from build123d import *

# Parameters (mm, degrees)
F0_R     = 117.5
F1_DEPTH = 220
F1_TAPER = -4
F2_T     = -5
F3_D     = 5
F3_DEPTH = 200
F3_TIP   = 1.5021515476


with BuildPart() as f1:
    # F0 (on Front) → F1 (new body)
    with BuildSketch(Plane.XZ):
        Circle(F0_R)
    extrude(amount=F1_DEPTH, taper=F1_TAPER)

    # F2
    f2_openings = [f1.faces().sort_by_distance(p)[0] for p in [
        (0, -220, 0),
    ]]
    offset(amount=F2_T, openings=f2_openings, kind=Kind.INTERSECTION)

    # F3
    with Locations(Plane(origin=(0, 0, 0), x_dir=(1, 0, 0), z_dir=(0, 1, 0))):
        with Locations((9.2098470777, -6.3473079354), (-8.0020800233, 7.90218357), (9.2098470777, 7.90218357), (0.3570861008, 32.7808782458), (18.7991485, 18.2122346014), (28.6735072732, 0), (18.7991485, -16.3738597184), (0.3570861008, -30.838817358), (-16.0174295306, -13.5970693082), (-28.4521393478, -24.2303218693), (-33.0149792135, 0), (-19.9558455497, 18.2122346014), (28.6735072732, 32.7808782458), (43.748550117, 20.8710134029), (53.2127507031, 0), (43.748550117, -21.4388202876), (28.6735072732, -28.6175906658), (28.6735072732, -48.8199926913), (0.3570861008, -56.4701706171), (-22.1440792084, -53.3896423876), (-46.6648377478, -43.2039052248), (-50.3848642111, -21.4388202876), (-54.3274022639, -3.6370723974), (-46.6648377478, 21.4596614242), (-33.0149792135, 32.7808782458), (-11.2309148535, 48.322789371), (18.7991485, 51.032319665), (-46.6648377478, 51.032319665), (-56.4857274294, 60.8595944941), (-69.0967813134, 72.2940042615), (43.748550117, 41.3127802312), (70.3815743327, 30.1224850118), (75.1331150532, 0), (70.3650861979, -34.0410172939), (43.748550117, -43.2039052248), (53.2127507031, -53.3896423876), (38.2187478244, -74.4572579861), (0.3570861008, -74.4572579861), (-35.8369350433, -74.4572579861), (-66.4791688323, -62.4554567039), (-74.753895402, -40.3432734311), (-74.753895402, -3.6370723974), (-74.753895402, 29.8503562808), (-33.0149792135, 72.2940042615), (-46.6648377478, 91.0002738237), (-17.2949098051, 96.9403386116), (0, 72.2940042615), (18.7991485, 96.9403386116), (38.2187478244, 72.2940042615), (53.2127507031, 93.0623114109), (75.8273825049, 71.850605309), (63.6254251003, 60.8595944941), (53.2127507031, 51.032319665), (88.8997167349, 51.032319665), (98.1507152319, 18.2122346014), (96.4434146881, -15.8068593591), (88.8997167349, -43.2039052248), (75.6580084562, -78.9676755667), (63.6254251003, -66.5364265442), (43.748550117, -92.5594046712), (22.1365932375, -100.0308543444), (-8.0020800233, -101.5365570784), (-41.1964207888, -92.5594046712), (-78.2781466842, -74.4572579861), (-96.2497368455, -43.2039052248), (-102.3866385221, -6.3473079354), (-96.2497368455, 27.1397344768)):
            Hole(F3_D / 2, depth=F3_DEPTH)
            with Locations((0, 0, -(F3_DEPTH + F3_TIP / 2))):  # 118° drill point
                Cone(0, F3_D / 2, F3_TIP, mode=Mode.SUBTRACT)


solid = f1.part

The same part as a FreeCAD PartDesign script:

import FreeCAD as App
import Part
import Sketcher

V = App.Vector


def faces_at(feature, points):
    """Names of the faces that lie closest to the given points."""
    faces = feature.Shape.Faces
    near = lambda p: min(range(len(faces)), key=lambda i: faces[i].distToShape(Part.Vertex(*p))[0])
    return sorted({f"Face{near(p) + 1}" for p in points})

doc = App.newDocument("Part")
body = doc.addObject("PartDesign::Body", "Body")

# Sketch on XZ plane
sketch1 = body.newObject("Sketcher::SketchObject", "Sketch")
sketch1.AttachmentSupport = (doc.getObject("XZ_Plane"), [""])
sketch1.MapMode = "FlatFace"
sketch1.addGeometry(Part.Circle(V(0, 0, 0), V(0, 0, 1), 117.5), False)
sketch1.addConstraint([
    Sketcher.Constraint("Coincident", 0, 3, -1, 1),
    Sketcher.Constraint("Diameter", 0, 235.0),
])
pad1 = body.newObject("PartDesign::Pad", "Pad")
pad1.Profile = sketch1
pad1.Length = 220
pad1.TaperAngle = 4
doc.recompute()

thickness = body.newObject("PartDesign::Thickness", "Thickness")
thickness.Base = (pad1, faces_at(pad1, [(0, -220, 0)]))
thickness.Value = 5
thickness.Reversed = True
thickness.Join = "Intersection"

# Sketch on XZ plane
sketch2 = body.newObject("Sketcher::SketchObject", "Sketch001")
sketch2.AttachmentSupport = (doc.getObject("XZ_Plane"), [""])
sketch2.MapMode = "FlatFace"
sketch2.addGeometry([
    Part.Circle(V(9.209847, 6.347308, 0), V(0, 0, 1), 2.5),  # 0
    Part.Circle(V(-8.00208, -7.902184, 0), V(0, 0, 1), 2.5),  # 1
    Part.Circle(V(9.209847, -7.902184, 0), V(0, 0, 1), 2.5),  # 2
    Part.Circle(V(0.357086, -32.780878, 0), V(0, 0, 1), 2.5),  # 3
    Part.Circle(V(18.799149, -18.212235, 0), V(0, 0, 1), 2.5),  # 4
    Part.Circle(V(28.673507, 0, 0), V(0, 0, 1), 2.5),  # 5
    Part.Circle(V(18.799149, 16.37386, 0), V(0, 0, 1), 2.5),  # 6
    Part.Circle(V(0.357086, 30.838817, 0), V(0, 0, 1), 2.5),  # 7
    Part.Circle(V(-16.01743, 13.597069, 0), V(0, 0, 1), 2.5),  # 8
    Part.Circle(V(-28.452139, 24.230322, 0), V(0, 0, 1), 2.5),  # 9
    Part.Circle(V(-33.014979, 0, 0), V(0, 0, 1), 2.5),  # 10
    Part.Circle(V(-19.955846, -18.212235, 0), V(0, 0, 1), 2.5),  # 11
    Part.Circle(V(28.673507, -32.780878, 0), V(0, 0, 1), 2.5),  # 12
    Part.Circle(V(43.74855, -20.871013, 0), V(0, 0, 1), 2.5),  # 13
    Part.Circle(V(53.212751, 0, 0), V(0, 0, 1), 2.5),  # 14
    Part.Circle(V(43.74855, 21.43882, 0), V(0, 0, 1), 2.5),  # 15
    Part.Circle(V(28.673507, 28.617591, 0), V(0, 0, 1), 2.5),  # 16
    Part.Circle(V(28.673507, 48.819993, 0), V(0, 0, 1), 2.5),  # 17
    Part.Circle(V(0.357086, 56.470171, 0), V(0, 0, 1), 2.5),  # 18
    Part.Circle(V(-22.144079, 53.389642, 0), V(0, 0, 1), 2.5),  # 19
    Part.Circle(V(-46.664838, 43.203905, 0), V(0, 0, 1), 2.5),  # 20
    Part.Circle(V(-50.384864, 21.43882, 0), V(0, 0, 1), 2.5),  # 21
    Part.Circle(V(-54.327402, 3.637072, 0), V(0, 0, 1), 2.5),  # 22
    Part.Circle(V(-46.664838, -21.459661, 0), V(0, 0, 1), 2.5),  # 23
    Part.Circle(V(-33.014979, -32.780878, 0), V(0, 0, 1), 2.5),  # 24
    Part.Circle(V(-11.230915, -48.322789, 0), V(0, 0, 1), 2.5),  # 25
    Part.Circle(V(18.799149, -51.03232, 0), V(0, 0, 1), 2.5),  # 26
    Part.Circle(V(-46.664838, -51.03232, 0), V(0, 0, 1), 2.5),  # 27
    Part.Circle(V(-56.485727, -60.859594, 0), V(0, 0, 1), 2.5),  # 28
    Part.Circle(V(-69.096781, -72.294004, 0), V(0, 0, 1), 2.5),  # 29
    Part.Circle(V(43.74855, -41.31278, 0), V(0, 0, 1), 2.5),  # 30
    Part.Circle(V(70.381574, -30.122485, 0), V(0, 0, 1), 2.5),  # 31
    Part.Circle(V(75.133115, 0, 0), V(0, 0, 1), 2.5),  # 32
    Part.Circle(V(70.365086, 34.041017, 0), V(0, 0, 1), 2.5),  # 33
    Part.Circle(V(43.74855, 43.203905, 0), V(0, 0, 1), 2.5),  # 34
    Part.Circle(V(53.212751, 53.389642, 0), V(0, 0, 1), 2.5),  # 35
    Part.Circle(V(38.218748, 74.457258, 0), V(0, 0, 1), 2.5),  # 36
    Part.Circle(V(0.357086, 74.457258, 0), V(0, 0, 1), 2.5),  # 37
    Part.Circle(V(-35.836935, 74.457258, 0), V(0, 0, 1), 2.5),  # 38
    Part.Circle(V(-66.479169, 62.455457, 0), V(0, 0, 1), 2.5),  # 39
    Part.Circle(V(-74.753895, 40.343273, 0), V(0, 0, 1), 2.5),  # 40
    Part.Circle(V(-74.753895, 3.637072, 0), V(0, 0, 1), 2.5),  # 41
    Part.Circle(V(-74.753895, -29.850356, 0), V(0, 0, 1), 2.5),  # 42
    Part.Circle(V(-33.014979, -72.294004, 0), V(0, 0, 1), 2.5),  # 43
    Part.Circle(V(-46.664838, -91.000274, 0), V(0, 0, 1), 2.5),  # 44
    Part.Circle(V(-17.29491, -96.940339, 0), V(0, 0, 1), 2.5),  # 45
    Part.Circle(V(0, -72.294004, 0), V(0, 0, 1), 2.5),  # 46
    Part.Circle(V(18.799149, -96.940339, 0), V(0, 0, 1), 2.5),  # 47
    Part.Circle(V(38.218748, -72.294004, 0), V(0, 0, 1), 2.5),  # 48
    Part.Circle(V(53.212751, -93.062311, 0), V(0, 0, 1), 2.5),  # 49
    Part.Circle(V(75.827383, -71.850605, 0), V(0, 0, 1), 2.5),  # 50
    Part.Circle(V(63.625425, -60.859594, 0), V(0, 0, 1), 2.5),  # 51
    Part.Circle(V(53.212751, -51.03232, 0), V(0, 0, 1), 2.5),  # 52
    Part.Circle(V(88.899717, -51.03232, 0), V(0, 0, 1), 2.5),  # 53
    Part.Circle(V(98.150715, -18.212235, 0), V(0, 0, 1), 2.5),  # 54
    Part.Circle(V(96.443415, 15.806859, 0), V(0, 0, 1), 2.5),  # 55
    Part.Circle(V(88.899717, 43.203905, 0), V(0, 0, 1), 2.5),  # 56
    Part.Circle(V(75.658008, 78.967676, 0), V(0, 0, 1), 2.5),  # 57
    Part.Circle(V(63.625425, 66.536427, 0), V(0, 0, 1), 2.5),  # 58
    Part.Circle(V(43.74855, 92.559405, 0), V(0, 0, 1), 2.5),  # 59
    Part.Circle(V(22.136593, 100.030854, 0), V(0, 0, 1), 2.5),  # 60
    Part.Circle(V(-8.00208, 101.536557, 0), V(0, 0, 1), 2.5),  # 61
    Part.Circle(V(-41.196421, 92.559405, 0), V(0, 0, 1), 2.5),  # 62
    Part.Circle(V(-78.278147, 74.457258, 0), V(0, 0, 1), 2.5),  # 63
    Part.Circle(V(-96.249737, 43.203905, 0), V(0, 0, 1), 2.5),  # 64
    Part.Circle(V(-102.386639, 6.347308, 0), V(0, 0, 1), 2.5),  # 65
    Part.Circle(V(-96.249737, -27.139734, 0), V(0, 0, 1), 2.5),  # 66
], False)
sketch2.addConstraint([
    Sketcher.Constraint("Equal", 0, 1),
    Sketcher.Constraint("Equal", 1, 2),
    Sketcher.Constraint("Equal", 2, 3),
    Sketcher.Constraint("Equal", 3, 4),
    Sketcher.Constraint("Equal", 4, 5),
    Sketcher.Constraint("Equal", 5, 6),
    Sketcher.Constraint("Equal", 6, 7),
    Sketcher.Constraint("Equal", 7, 8),
    Sketcher.Constraint("Equal", 8, 9),
    Sketcher.Constraint("Equal", 9, 10),
    Sketcher.Constraint("Equal", 10, 11),
    Sketcher.Constraint("Equal", 11, 12),
    Sketcher.Constraint("Equal", 12, 13),
    Sketcher.Constraint("Equal", 13, 14),
    Sketcher.Constraint("Equal", 14, 15),
    Sketcher.Constraint("Equal", 15, 16),
    Sketcher.Constraint("Equal", 16, 17),
    Sketcher.Constraint("Equal", 17, 18),
    Sketcher.Constraint("Equal", 18, 19),
    Sketcher.Constraint("Equal", 19, 20),
    Sketcher.Constraint("Equal", 20, 21),
    Sketcher.Constraint("Equal", 21, 22),
    Sketcher.Constraint("Equal", 22, 23),
    Sketcher.Constraint("Equal", 23, 24),
    Sketcher.Constraint("Equal", 24, 25),
    Sketcher.Constraint("Equal", 25, 26),
    Sketcher.Constraint("Equal", 26, 27),
    Sketcher.Constraint("Equal", 27, 28),
    Sketcher.Constraint("Equal", 28, 29),
    Sketcher.Constraint("Equal", 29, 30),
    Sketcher.Constraint("Equal", 30, 31),
    Sketcher.Constraint("Equal", 31, 32),
    Sketcher.Constraint("Equal", 32, 33),
    Sketcher.Constraint("Equal", 33, 34),
    Sketcher.Constraint("Equal", 34, 35),
    Sketcher.Constraint("Equal", 35, 36),
    Sketcher.Constraint("Equal", 36, 37),
    Sketcher.Constraint("Equal", 37, 38),
    Sketcher.Constraint("Equal", 38, 39),
    Sketcher.Constraint("Equal", 39, 40),
    Sketcher.Constraint("Equal", 40, 41),
    Sketcher.Constraint("Equal", 41, 42),
    Sketcher.Constraint("Equal", 42, 43),
    Sketcher.Constraint("Equal", 43, 44),
    Sketcher.Constraint("Equal", 44, 45),
    Sketcher.Constraint("Equal", 45, 46),
    Sketcher.Constraint("Equal", 46, 47),
    Sketcher.Constraint("Equal", 47, 48),
    Sketcher.Constraint("Equal", 48, 49),
    Sketcher.Constraint("Equal", 49, 50),
    Sketcher.Constraint("Equal", 50, 51),
    Sketcher.Constraint("Equal", 51, 52),
    Sketcher.Constraint("Equal", 52, 53),
    Sketcher.Constraint("Equal", 53, 54),
    Sketcher.Constraint("Equal", 54, 55),
    Sketcher.Constraint("Equal", 55, 56),
    Sketcher.Constraint("Equal", 56, 57),
    Sketcher.Constraint("Equal", 57, 58),
    Sketcher.Constraint("Equal", 58, 59),
    Sketcher.Constraint("Equal", 59, 60),
    Sketcher.Constraint("Equal", 60, 61),
    Sketcher.Constraint("Equal", 61, 62),
    Sketcher.Constraint("Equal", 62, 63),
    Sketcher.Constraint("Equal", 63, 64),
    Sketcher.Constraint("Equal", 64, 65),
    Sketcher.Constraint("Equal", 65, 66),
    Sketcher.Constraint("PointOnObject", 5, 3, -1),
    Sketcher.Constraint("PointOnObject", 10, 3, -1),
    Sketcher.Constraint("PointOnObject", 14, 3, -1),
    Sketcher.Constraint("PointOnObject", 32, 3, -1),
    Sketcher.Constraint("PointOnObject", 46, 3, -2),
    Sketcher.Constraint("Horizontal", 1, 3, 2, 3),
    Sketcher.Constraint("Horizontal", 4, 3, 11, 3),
    Sketcher.Constraint("Horizontal", 3, 3, 12, 3),
    Sketcher.Constraint("Horizontal", 15, 3, 21, 3),
    Sketcher.Constraint("Horizontal", 12, 3, 24, 3),
    Sketcher.Constraint("Horizontal", 26, 3, 27, 3),
    Sketcher.Constraint("Horizontal", 20, 3, 34, 3),
    Sketcher.Constraint("Horizontal", 19, 3, 35, 3),
    Sketcher.Constraint("Horizontal", 36, 3, 37, 3),
    Sketcher.Constraint("Horizontal", 37, 3, 38, 3),
    Sketcher.Constraint("Horizontal", 22, 3, 41, 3),
    Sketcher.Constraint("Horizontal", 29, 3, 43, 3),
    Sketcher.Constraint("Horizontal", 43, 3, 46, 3),
    Sketcher.Constraint("Horizontal", 45, 3, 47, 3),
    Sketcher.Constraint("Horizontal", 46, 3, 48, 3),
    Sketcher.Constraint("Horizontal", 28, 3, 51, 3),
    Sketcher.Constraint("Horizontal", 27, 3, 52, 3),
    Sketcher.Constraint("Horizontal", 52, 3, 53, 3),
    Sketcher.Constraint("Horizontal", 11, 3, 54, 3),
    Sketcher.Constraint("Horizontal", 34, 3, 56, 3),
    Sketcher.Constraint("Horizontal", 59, 3, 62, 3),
    Sketcher.Constraint("Horizontal", 38, 3, 63, 3),
    Sketcher.Constraint("Horizontal", 56, 3, 64, 3),
    Sketcher.Constraint("Horizontal", 0, 3, 65, 3),
    Sketcher.Constraint("Vertical", 0, 3, 2, 3),
    Sketcher.Constraint("Vertical", 4, 3, 6, 3),
    Sketcher.Constraint("Vertical", 3, 3, 7, 3),
    Sketcher.Constraint("Vertical", 5, 3, 12, 3),
    Sketcher.Constraint("Vertical", 13, 3, 15, 3),
    Sketcher.Constraint("Vertical", 12, 3, 16, 3),
    Sketcher.Constraint("Vertical", 16, 3, 17, 3),
    Sketcher.Constraint("Vertical", 7, 3, 18, 3),
    Sketcher.Constraint("Vertical", 20, 3, 23, 3),
    Sketcher.Constraint("Vertical", 10, 3, 24, 3),
    Sketcher.Constraint("Vertical", 6, 3, 26, 3),
    Sketcher.Constraint("Vertical", 23, 3, 27, 3),
    Sketcher.Constraint("Vertical", 15, 3, 30, 3),
    Sketcher.Constraint("Vertical", 30, 3, 34, 3),
    Sketcher.Constraint("Vertical", 14, 3, 35, 3),
    Sketcher.Constraint("Vertical", 18, 3, 37, 3),
    Sketcher.Constraint("Vertical", 40, 3, 41, 3),
    Sketcher.Constraint("Vertical", 41, 3, 42, 3),
    Sketcher.Constraint("Vertical", 24, 3, 43, 3),
    Sketcher.Constraint("Vertical", 27, 3, 44, 3),
    Sketcher.Constraint("Vertical", 26, 3, 47, 3),
    Sketcher.Constraint("Vertical", 36, 3, 48, 3),
    Sketcher.Constraint("Vertical", 35, 3, 49, 3),
    Sketcher.Constraint("Vertical", 49, 3, 52, 3),
    Sketcher.Constraint("Vertical", 53, 3, 56, 3),
    Sketcher.Constraint("Vertical", 51, 3, 58, 3),
    Sketcher.Constraint("Vertical", 34, 3, 59, 3),
    Sketcher.Constraint("Vertical", 1, 3, 61, 3),
    Sketcher.Constraint("Vertical", 64, 3, 66, 3),
    Sketcher.Constraint("Diameter", 0, 5.0),
    Sketcher.Constraint("DistanceX", 1, 3, -1, 1, 8.00208),
    Sketcher.Constraint("DistanceY", 3, 3, -1, 1, 32.780878),
    Sketcher.Constraint("DistanceX", -1, 1, 4, 3, 18.799149),
    Sketcher.Constraint("DistanceY", -1, 1, 6, 3, 16.37386),
    Sketcher.Constraint("DistanceX", 8, 3, -1, 1, 16.01743),
    Sketcher.Constraint("DistanceY", -1, 1, 8, 3, 13.597069),
    Sketcher.Constraint("DistanceX", 9, 3, -1, 1, 28.452139),
    Sketcher.Constraint("DistanceY", -1, 1, 9, 3, 24.230322),
    Sketcher.Constraint("DistanceX", 10, 3, -1, 1, 33.014979),
    Sketcher.Constraint("DistanceX", -1, 1, 13, 3, 43.74855),
    Sketcher.Constraint("DistanceX", -1, 1, 14, 3, 53.212751),
    Sketcher.Constraint("DistanceY", -1, 1, 15, 3, 21.43882),
    Sketcher.Constraint("DistanceY", -1, 1, 16, 3, 28.617591),
    Sketcher.Constraint("DistanceY", -1, 1, 18, 3, 56.470171),
    Sketcher.Constraint("DistanceX", 19, 3, -1, 1, 22.144079),
    Sketcher.Constraint("DistanceY", 23, 3, -1, 1, 21.459661),
    Sketcher.Constraint("DistanceY", 25, 3, -1, 1, 48.322789),
    Sketcher.Constraint("DistanceY", 26, 3, -1, 1, 51.03232),
    Sketcher.Constraint("DistanceX", 29, 3, -1, 1, 69.096781),
    Sketcher.Constraint("DistanceY", 30, 3, -1, 1, 41.31278),
    Sketcher.Constraint("DistanceX", 39, 3, -1, 1, 66.479169),
    Sketcher.Constraint("DistanceX", 45, 3, -1, 1, 17.29491),
    Sketcher.Constraint("DistanceY", 45, 3, -1, 1, 96.940339),
    Sketcher.Constraint("DistanceY", 49, 3, -1, 1, 93.062311),
    Sketcher.Constraint("DistanceY", -1, 1, 55, 3, 15.806859),
    Sketcher.Constraint("DistanceX", -1, 1, 57, 3, 75.658008),
    Sketcher.Constraint("DistanceX", 62, 3, -1, 1, 41.196421),
    Sketcher.Constraint("DistanceX", 65, 3, -1, 1, 102.386639),
    Sketcher.Constraint("DistanceX", -1, 1, 0, 3, 9.209847),
    Sketcher.Constraint("DistanceY", -1, 1, 0, 3, 6.347308),
    Sketcher.Constraint("DistanceY", 1, 3, -1, 1, 7.902184),
    Sketcher.Constraint("DistanceX", -1, 1, 3, 3, 0.357086),
    Sketcher.Constraint("DistanceY", 4, 3, -1, 1, 18.212235),
    Sketcher.Constraint("DistanceX", -1, 1, 5, 3, 28.673507),
    Sketcher.Constraint("DistanceY", -1, 1, 7, 3, 30.838817),
    Sketcher.Constraint("DistanceX", 11, 3, -1, 1, 19.955846),
    Sketcher.Constraint("DistanceY", 13, 3, -1, 1, 20.871013),
    Sketcher.Constraint("DistanceY", -1, 1, 17, 3, 48.819993),
    Sketcher.Constraint("DistanceY", -1, 1, 19, 3, 53.389642),
    Sketcher.Constraint("DistanceX", 20, 3, -1, 1, 46.664838),
    Sketcher.Constraint("DistanceY", -1, 1, 20, 3, 43.203905),
    Sketcher.Constraint("DistanceX", 21, 3, -1, 1, 50.384864),
    Sketcher.Constraint("DistanceX", 22, 3, -1, 1, 54.327402),
    Sketcher.Constraint("DistanceY", -1, 1, 22, 3, 3.637072),
    Sketcher.Constraint("DistanceX", 25, 3, -1, 1, 11.230915),
    Sketcher.Constraint("DistanceX", 28, 3, -1, 1, 56.485727),
    Sketcher.Constraint("DistanceY", 28, 3, -1, 1, 60.859594),
    Sketcher.Constraint("DistanceY", 29, 3, -1, 1, 72.294004),
    Sketcher.Constraint("DistanceX", -1, 1, 31, 3, 70.381574),
    Sketcher.Constraint("DistanceY", 31, 3, -1, 1, 30.122485),
    Sketcher.Constraint("DistanceX", -1, 1, 32, 3, 75.133115),
    Sketcher.Constraint("DistanceX", -1, 1, 33, 3, 70.365086),
    Sketcher.Constraint("DistanceY", -1, 1, 33, 3, 34.041017),
    Sketcher.Constraint("DistanceX", -1, 1, 36, 3, 38.218748),
    Sketcher.Constraint("DistanceY", -1, 1, 36, 3, 74.457258),
    Sketcher.Constraint("DistanceX", 38, 3, -1, 1, 35.836935),
    Sketcher.Constraint("DistanceY", -1, 1, 39, 3, 62.455457),
    Sketcher.Constraint("DistanceX", 40, 3, -1, 1, 74.753895),
    Sketcher.Constraint("DistanceY", -1, 1, 40, 3, 40.343273),
    Sketcher.Constraint("DistanceY", 42, 3, -1, 1, 29.850356),
    Sketcher.Constraint("DistanceY", 44, 3, -1, 1, 91.000274),
    Sketcher.Constraint("DistanceX", -1, 1, 50, 3, 75.827383),
    Sketcher.Constraint("DistanceY", 50, 3, -1, 1, 71.850605),
    Sketcher.Constraint("DistanceX", -1, 1, 51, 3, 63.625425),
    Sketcher.Constraint("DistanceX", -1, 1, 53, 3, 88.899717),
    Sketcher.Constraint("DistanceX", -1, 1, 54, 3, 98.150715),
    Sketcher.Constraint("DistanceX", -1, 1, 55, 3, 96.443415),
    Sketcher.Constraint("DistanceY", -1, 1, 57, 3, 78.967676),
    Sketcher.Constraint("DistanceY", -1, 1, 58, 3, 66.536427),
    Sketcher.Constraint("DistanceY", -1, 1, 59, 3, 92.559405),
    Sketcher.Constraint("DistanceX", -1, 1, 60, 3, 22.136593),
    Sketcher.Constraint("DistanceY", -1, 1, 60, 3, 100.030854),
    Sketcher.Constraint("DistanceY", -1, 1, 61, 3, 101.536557),
    Sketcher.Constraint("DistanceX", 63, 3, -1, 1, 78.278147),
    Sketcher.Constraint("DistanceX", 64, 3, -1, 1, 96.249737),
    Sketcher.Constraint("DistanceY", 66, 3, -1, 1, 27.139734),
])
doc.recompute()
hole = body.newObject("PartDesign::Hole", "Hole")
hole.Profile = sketch2
hole.ThreadType = "None"
hole.Diameter = 5
hole.DepthType = "Dimension"
hole.Depth = 200
hole.DrillPoint = "Angled"
hole.DrillPointAngle = 118
hole.Reversed = True

doc.recompute()
